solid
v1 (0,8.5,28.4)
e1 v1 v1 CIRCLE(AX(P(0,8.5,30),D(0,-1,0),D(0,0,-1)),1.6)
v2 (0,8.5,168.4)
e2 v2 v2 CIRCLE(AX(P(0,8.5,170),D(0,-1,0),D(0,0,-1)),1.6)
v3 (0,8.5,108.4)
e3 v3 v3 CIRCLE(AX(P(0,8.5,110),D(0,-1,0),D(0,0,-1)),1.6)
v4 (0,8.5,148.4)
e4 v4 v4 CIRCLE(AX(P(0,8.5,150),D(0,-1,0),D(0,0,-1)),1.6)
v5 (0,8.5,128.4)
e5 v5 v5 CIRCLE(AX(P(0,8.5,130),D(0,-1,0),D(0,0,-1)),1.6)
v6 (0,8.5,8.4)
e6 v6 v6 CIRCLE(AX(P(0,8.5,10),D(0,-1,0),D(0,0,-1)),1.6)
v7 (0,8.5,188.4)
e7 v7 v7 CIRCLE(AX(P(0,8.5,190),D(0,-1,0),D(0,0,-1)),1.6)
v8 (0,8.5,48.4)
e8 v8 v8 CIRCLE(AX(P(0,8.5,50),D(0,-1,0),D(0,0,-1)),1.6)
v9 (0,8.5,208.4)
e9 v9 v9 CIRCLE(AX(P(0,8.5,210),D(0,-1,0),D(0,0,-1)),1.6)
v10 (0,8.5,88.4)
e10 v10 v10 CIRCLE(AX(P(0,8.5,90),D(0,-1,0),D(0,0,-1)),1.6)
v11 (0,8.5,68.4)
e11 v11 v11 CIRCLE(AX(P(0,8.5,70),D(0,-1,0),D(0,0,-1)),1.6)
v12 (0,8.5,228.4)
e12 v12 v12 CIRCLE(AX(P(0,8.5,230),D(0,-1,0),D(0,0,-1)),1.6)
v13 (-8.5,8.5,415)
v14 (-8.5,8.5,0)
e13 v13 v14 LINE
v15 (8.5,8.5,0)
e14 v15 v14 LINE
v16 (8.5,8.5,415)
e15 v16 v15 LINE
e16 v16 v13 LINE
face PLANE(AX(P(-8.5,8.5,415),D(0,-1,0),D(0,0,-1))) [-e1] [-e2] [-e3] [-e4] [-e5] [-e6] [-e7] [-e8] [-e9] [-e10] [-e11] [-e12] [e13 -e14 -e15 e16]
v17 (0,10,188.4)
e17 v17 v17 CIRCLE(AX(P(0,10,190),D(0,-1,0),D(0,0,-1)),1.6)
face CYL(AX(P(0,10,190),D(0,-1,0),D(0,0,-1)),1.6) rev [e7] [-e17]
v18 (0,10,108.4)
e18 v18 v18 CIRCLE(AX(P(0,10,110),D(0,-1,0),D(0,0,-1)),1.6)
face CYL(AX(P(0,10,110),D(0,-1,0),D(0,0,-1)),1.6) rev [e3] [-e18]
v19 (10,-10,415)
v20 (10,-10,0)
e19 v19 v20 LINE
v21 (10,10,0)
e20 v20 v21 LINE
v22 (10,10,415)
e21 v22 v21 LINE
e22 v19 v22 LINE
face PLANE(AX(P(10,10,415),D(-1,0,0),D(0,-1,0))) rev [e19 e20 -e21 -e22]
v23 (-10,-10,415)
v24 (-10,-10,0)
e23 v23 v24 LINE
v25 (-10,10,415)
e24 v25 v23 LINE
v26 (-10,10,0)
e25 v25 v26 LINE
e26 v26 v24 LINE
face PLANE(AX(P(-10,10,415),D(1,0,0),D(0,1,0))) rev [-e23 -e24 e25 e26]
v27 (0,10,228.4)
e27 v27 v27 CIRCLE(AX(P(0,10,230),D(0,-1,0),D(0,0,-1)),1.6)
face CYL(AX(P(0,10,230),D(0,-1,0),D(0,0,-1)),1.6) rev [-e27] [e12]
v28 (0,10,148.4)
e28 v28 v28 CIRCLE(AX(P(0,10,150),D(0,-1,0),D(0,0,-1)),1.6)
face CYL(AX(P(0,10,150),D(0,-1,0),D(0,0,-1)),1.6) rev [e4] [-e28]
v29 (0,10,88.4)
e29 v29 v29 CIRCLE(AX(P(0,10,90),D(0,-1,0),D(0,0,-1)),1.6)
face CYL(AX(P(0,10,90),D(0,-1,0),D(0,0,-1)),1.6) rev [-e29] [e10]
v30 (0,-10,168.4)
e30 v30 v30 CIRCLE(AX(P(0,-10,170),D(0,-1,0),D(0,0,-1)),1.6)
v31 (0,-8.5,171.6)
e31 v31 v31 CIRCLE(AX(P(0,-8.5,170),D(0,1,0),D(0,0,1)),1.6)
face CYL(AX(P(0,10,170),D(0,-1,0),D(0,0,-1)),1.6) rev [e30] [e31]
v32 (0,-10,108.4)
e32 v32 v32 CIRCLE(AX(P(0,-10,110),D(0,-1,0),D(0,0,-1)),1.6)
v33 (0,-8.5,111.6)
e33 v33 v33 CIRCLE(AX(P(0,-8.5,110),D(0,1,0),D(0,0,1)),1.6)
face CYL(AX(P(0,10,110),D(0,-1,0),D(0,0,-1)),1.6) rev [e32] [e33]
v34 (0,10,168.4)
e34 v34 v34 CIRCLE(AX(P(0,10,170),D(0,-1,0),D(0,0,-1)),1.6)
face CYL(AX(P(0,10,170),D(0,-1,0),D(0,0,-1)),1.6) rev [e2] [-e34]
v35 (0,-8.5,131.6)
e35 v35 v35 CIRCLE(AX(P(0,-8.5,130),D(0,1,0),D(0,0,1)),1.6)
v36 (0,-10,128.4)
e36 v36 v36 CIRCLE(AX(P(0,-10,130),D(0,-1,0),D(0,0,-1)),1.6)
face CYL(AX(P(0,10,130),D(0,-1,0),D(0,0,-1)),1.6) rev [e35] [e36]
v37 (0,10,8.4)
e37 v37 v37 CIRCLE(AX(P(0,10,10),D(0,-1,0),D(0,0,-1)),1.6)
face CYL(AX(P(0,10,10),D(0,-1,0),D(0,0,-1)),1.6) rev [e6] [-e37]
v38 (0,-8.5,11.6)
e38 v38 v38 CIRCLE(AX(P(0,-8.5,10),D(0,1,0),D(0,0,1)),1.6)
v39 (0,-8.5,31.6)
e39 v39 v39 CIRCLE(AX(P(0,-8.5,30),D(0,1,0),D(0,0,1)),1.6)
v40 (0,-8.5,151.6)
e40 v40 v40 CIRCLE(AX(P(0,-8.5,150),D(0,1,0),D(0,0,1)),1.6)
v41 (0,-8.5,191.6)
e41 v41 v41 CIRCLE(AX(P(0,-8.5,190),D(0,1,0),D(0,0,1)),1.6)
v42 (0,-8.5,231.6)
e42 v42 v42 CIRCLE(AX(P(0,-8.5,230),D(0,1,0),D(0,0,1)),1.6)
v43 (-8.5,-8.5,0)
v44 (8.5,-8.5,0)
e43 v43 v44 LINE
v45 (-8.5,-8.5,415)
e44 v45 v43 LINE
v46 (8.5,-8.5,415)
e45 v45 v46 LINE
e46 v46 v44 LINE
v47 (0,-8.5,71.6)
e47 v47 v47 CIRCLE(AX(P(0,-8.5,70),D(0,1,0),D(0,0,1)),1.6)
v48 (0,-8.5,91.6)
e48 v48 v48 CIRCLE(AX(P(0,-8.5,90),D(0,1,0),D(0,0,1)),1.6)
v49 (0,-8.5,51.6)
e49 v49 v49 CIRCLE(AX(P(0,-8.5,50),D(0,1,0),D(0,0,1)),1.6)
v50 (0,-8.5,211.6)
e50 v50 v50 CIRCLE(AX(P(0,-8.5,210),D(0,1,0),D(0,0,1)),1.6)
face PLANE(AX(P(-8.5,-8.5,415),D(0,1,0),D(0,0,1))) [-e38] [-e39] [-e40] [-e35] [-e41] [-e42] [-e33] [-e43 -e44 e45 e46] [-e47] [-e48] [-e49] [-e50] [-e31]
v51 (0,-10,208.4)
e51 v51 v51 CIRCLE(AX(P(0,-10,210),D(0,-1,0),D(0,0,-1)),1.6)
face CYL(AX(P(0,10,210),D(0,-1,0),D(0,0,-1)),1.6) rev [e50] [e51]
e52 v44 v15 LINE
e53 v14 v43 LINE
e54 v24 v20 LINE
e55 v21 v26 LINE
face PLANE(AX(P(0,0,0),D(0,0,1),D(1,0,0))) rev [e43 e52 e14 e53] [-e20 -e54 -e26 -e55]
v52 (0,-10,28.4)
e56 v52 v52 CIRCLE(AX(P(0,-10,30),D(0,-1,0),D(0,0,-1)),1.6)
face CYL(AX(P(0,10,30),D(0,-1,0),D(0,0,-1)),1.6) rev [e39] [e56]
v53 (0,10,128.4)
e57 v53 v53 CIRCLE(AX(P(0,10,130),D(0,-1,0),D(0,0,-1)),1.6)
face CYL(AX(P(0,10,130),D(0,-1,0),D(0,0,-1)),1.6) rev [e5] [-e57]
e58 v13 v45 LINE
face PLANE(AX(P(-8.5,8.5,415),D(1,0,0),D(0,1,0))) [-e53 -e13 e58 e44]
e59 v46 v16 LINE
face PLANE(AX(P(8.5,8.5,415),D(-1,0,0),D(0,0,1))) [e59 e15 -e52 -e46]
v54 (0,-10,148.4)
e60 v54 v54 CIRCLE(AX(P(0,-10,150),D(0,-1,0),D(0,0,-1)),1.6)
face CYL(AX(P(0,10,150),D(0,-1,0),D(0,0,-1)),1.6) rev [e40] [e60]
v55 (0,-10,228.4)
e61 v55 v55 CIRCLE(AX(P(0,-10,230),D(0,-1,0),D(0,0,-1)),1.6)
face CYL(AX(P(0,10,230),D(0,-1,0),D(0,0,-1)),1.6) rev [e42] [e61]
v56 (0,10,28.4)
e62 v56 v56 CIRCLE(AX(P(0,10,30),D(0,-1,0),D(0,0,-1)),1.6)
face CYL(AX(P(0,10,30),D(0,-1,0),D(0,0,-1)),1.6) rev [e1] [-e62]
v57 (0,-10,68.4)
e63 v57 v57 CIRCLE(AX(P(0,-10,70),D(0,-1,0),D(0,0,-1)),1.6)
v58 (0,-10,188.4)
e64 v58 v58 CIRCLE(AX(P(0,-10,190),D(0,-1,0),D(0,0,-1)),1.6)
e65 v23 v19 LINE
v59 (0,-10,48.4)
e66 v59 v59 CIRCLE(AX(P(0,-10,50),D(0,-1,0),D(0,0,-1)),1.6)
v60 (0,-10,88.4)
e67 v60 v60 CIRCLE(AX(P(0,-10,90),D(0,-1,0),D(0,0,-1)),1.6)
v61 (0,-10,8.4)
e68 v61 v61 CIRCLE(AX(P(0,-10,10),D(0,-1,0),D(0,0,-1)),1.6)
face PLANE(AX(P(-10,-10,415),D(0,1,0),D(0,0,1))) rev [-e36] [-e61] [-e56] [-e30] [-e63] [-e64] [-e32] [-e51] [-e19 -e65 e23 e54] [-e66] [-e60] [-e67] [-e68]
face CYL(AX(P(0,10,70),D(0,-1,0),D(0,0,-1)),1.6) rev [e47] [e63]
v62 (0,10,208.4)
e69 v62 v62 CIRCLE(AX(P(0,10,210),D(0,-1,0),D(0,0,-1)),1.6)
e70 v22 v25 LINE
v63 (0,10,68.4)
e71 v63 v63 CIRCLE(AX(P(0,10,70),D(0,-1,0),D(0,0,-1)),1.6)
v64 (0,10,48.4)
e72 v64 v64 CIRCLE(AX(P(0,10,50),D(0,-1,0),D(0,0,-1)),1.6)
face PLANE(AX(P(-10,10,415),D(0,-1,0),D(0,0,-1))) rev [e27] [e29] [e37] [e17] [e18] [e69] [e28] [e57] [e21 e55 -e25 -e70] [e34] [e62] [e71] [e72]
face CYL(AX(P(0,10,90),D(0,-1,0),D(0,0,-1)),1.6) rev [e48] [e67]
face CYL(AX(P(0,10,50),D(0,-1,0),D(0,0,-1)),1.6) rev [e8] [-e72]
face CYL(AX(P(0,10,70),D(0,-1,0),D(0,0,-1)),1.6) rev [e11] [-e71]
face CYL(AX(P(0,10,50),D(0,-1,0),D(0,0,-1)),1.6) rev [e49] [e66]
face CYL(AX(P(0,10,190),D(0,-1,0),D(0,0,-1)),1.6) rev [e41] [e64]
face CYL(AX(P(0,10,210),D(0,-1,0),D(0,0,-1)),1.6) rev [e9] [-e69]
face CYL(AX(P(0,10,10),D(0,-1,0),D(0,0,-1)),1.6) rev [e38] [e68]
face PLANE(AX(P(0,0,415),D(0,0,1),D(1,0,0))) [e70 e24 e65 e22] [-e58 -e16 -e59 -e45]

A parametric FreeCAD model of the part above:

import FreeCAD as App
import Part
import Sketcher

V = App.Vector
Q = App.Units.Quantity

doc = App.newDocument("Part")
body = doc.addObject("PartDesign::Body", "Body")

sketch1 = body.newObject("Sketcher::SketchObject", "Sketch")
sketch1.AttachmentSupport = (doc.getObject("XY_Plane"), [""])
sketch1.MapMode = "FlatFace"
sketch1.addGeometry([
    Part.LineSegment(V(-10, 10, 0), V(-10, -10, 0)),
    Part.LineSegment(V(-10, -10, 0), V(10, -10, 0)),
    Part.LineSegment(V(10, -10, 0), V(10, 10, 0)),
    Part.LineSegment(V(10, 10, 0), V(-10, 10, 0)),
    Part.LineSegment(V(8, -8, 0), V(-8, -8, 0)),
    Part.LineSegment(V(-8, -8, 0), V(-8, 8, 0)),
    Part.LineSegment(V(-8, 8, 0), V(8, 8, 0)),
    Part.LineSegment(V(8, 8, 0), V(8, -8, 0)),
], False)
sketch1.addConstraint([
    Sketcher.Constraint("Coincident", 0, 2, 1, 1),
    Sketcher.Constraint("Coincident", 1, 2, 2, 1),
    Sketcher.Constraint("Coincident", 2, 2, 3, 1),
    Sketcher.Constraint("Coincident", 3, 2, 0, 1),
    Sketcher.Constraint("Coincident", 4, 2, 5, 1),
    Sketcher.Constraint("Coincident", 5, 2, 6, 1),
    Sketcher.Constraint("Coincident", 6, 2, 7, 1),
    Sketcher.Constraint("Coincident", 7, 2, 4, 1),
    Sketcher.Constraint("Vertical", 0),
    Sketcher.Constraint("Horizontal", 1),
    Sketcher.Constraint("Vertical", 2),
    Sketcher.Constraint("Horizontal", 3),
    Sketcher.Constraint("Horizontal", 4),
    Sketcher.Constraint("Vertical", 5),
    Sketcher.Constraint("Horizontal", 6),
    Sketcher.Constraint("Vertical", 7),
    Sketcher.Constraint("Symmetric", 0, 2, 2, 2, -1, 1),
    Sketcher.Constraint("Symmetric", 4, 2, 6, 2, -1, 1),
    Sketcher.Constraint("Equal", 3, 0),
    Sketcher.Constraint("Equal", 6, 5),
    Sketcher.Constraint("DistanceX", 1, 1, 1, 2, Q("20 mm")),
    Sketcher.Constraint("DistanceX", 4, 2, 4, 1, Q("17 mm")),
])
pad1 = body.newObject("PartDesign::Pad", "Pad")
pad1.Profile = sketch1
pad1.Length = 415

sketch2 = body.newObject("Sketcher::SketchObject", "Sketch001")
sketch2.AttachmentSupport = (doc.getObject("XZ_Plane"), [""])
sketch2.MapMode = "FlatFace"
sketch2.AttachmentOffset = App.Placement(V(0, 0, 10), App.Rotation())
sketch2.addGeometry([
    Part.Circle(V(0, 10, 0), V(0, 0, 1), 1.6),
    Part.Circle(V(0, 30, 0), V(0, 0, 1), 1.6),
    Part.Circle(V(0, 50, 0), V(0, 0, 1), 1.6),
    Part.Circle(V(0, 70, 0), V(0, 0, 1), 1.6),
    Part.Circle(V(0, 90, 0), V(0, 0, 1), 1.6),
    Part.Circle(V(0, 110, 0), V(0, 0, 1), 1.6),
    Part.Circle(V(0, 130, 0), V(0, 0, 1), 1.6),
    Part.Circle(V(0, 150, 0), V(0, 0, 1), 1.6),
    Part.Circle(V(0, 170, 0), V(0, 0, 1), 1.6),
    Part.Circle(V(0, 190, 0), V(0, 0, 1), 1.6),
    Part.Circle(V(0, 210, 0), V(0, 0, 1), 1.6),
    Part.Circle(V(0, 230, 0), V(0, 0, 1), 1.6),
], False)
sketch2.addConstraint([
    Sketcher.Constraint("Equal", 0, 1),
    Sketcher.Constraint("Equal", 1, 2),
    Sketcher.Constraint("Equal", 2, 3),
    Sketcher.Constraint("Equal", 3, 4),
    Sketcher.Constraint("Equal", 4, 5),
    Sketcher.Constraint("Equal", 5, 6),
    Sketcher.Constraint("Equal", 6, 7),
    Sketcher.Constraint("Equal", 7, 8),
    Sketcher.Constraint("Equal", 8, 9),
    Sketcher.Constraint("Equal", 9, 10),
    Sketcher.Constraint("Equal", 10, 11),
    Sketcher.Constraint("PointOnObject", 0, 3, -2),
    Sketcher.Constraint("PointOnObject", 1, 3, -2),
    Sketcher.Constraint("PointOnObject", 2, 3, -2),
    Sketcher.Constraint("PointOnObject", 3, 3, -2),
    Sketcher.Constraint("PointOnObject", 4, 3, -2),
    Sketcher.Constraint("PointOnObject", 5, 3, -2),
    Sketcher.Constraint("PointOnObject", 6, 3, -2),
    Sketcher.Constraint("PointOnObject", 7, 3, -2),
    Sketcher.Constraint("PointOnObject", 8, 3, -2),
    Sketcher.Constraint("PointOnObject", 9, 3, -2),
    Sketcher.Constraint("PointOnObject", 10, 3, -2),
    Sketcher.Constraint("PointOnObject", 11, 3, -2),
    Sketcher.Constraint("Diameter", 0, Q("3.2 mm")),
    Sketcher.Constraint("DistanceY", -1, 1, 0, 3, Q("10 mm")),
    Sketcher.Constraint("DistanceY", -1, 1, 1, 3, Q("30 mm")),
    Sketcher.Constraint("DistanceY", -1, 1, 2, 3, Q("50 mm")),
    Sketcher.Constraint("DistanceY", -1, 1, 3, 3, Q("70 mm")),
    Sketcher.Constraint("DistanceY", -1, 1, 4, 3, Q("90 mm")),
    Sketcher.Constraint("DistanceY", -1, 1, 5, 3, Q("110 mm")),
    Sketcher.Constraint("DistanceY", -1, 1, 6, 3, Q("130 mm")),
    Sketcher.Constraint("DistanceY", -1, 1, 7, 3, Q("150 mm")),
    Sketcher.Constraint("DistanceY", -1, 1, 8, 3, Q("170 mm")),
    Sketcher.Constraint("DistanceY", -1, 1, 9, 3, Q("190 mm")),
    Sketcher.Constraint("DistanceY", -1, 1, 10, 3, Q("210 mm")),
    Sketcher.Constraint("DistanceY", -1, 1, 11, 3, Q("230 mm")),
])
pocket1 = body.newObject("PartDesign::Pocket", "Pocket")
pocket1.Profile = sketch2
pocket1.Type = "ThroughAll"

doc.recompute()
